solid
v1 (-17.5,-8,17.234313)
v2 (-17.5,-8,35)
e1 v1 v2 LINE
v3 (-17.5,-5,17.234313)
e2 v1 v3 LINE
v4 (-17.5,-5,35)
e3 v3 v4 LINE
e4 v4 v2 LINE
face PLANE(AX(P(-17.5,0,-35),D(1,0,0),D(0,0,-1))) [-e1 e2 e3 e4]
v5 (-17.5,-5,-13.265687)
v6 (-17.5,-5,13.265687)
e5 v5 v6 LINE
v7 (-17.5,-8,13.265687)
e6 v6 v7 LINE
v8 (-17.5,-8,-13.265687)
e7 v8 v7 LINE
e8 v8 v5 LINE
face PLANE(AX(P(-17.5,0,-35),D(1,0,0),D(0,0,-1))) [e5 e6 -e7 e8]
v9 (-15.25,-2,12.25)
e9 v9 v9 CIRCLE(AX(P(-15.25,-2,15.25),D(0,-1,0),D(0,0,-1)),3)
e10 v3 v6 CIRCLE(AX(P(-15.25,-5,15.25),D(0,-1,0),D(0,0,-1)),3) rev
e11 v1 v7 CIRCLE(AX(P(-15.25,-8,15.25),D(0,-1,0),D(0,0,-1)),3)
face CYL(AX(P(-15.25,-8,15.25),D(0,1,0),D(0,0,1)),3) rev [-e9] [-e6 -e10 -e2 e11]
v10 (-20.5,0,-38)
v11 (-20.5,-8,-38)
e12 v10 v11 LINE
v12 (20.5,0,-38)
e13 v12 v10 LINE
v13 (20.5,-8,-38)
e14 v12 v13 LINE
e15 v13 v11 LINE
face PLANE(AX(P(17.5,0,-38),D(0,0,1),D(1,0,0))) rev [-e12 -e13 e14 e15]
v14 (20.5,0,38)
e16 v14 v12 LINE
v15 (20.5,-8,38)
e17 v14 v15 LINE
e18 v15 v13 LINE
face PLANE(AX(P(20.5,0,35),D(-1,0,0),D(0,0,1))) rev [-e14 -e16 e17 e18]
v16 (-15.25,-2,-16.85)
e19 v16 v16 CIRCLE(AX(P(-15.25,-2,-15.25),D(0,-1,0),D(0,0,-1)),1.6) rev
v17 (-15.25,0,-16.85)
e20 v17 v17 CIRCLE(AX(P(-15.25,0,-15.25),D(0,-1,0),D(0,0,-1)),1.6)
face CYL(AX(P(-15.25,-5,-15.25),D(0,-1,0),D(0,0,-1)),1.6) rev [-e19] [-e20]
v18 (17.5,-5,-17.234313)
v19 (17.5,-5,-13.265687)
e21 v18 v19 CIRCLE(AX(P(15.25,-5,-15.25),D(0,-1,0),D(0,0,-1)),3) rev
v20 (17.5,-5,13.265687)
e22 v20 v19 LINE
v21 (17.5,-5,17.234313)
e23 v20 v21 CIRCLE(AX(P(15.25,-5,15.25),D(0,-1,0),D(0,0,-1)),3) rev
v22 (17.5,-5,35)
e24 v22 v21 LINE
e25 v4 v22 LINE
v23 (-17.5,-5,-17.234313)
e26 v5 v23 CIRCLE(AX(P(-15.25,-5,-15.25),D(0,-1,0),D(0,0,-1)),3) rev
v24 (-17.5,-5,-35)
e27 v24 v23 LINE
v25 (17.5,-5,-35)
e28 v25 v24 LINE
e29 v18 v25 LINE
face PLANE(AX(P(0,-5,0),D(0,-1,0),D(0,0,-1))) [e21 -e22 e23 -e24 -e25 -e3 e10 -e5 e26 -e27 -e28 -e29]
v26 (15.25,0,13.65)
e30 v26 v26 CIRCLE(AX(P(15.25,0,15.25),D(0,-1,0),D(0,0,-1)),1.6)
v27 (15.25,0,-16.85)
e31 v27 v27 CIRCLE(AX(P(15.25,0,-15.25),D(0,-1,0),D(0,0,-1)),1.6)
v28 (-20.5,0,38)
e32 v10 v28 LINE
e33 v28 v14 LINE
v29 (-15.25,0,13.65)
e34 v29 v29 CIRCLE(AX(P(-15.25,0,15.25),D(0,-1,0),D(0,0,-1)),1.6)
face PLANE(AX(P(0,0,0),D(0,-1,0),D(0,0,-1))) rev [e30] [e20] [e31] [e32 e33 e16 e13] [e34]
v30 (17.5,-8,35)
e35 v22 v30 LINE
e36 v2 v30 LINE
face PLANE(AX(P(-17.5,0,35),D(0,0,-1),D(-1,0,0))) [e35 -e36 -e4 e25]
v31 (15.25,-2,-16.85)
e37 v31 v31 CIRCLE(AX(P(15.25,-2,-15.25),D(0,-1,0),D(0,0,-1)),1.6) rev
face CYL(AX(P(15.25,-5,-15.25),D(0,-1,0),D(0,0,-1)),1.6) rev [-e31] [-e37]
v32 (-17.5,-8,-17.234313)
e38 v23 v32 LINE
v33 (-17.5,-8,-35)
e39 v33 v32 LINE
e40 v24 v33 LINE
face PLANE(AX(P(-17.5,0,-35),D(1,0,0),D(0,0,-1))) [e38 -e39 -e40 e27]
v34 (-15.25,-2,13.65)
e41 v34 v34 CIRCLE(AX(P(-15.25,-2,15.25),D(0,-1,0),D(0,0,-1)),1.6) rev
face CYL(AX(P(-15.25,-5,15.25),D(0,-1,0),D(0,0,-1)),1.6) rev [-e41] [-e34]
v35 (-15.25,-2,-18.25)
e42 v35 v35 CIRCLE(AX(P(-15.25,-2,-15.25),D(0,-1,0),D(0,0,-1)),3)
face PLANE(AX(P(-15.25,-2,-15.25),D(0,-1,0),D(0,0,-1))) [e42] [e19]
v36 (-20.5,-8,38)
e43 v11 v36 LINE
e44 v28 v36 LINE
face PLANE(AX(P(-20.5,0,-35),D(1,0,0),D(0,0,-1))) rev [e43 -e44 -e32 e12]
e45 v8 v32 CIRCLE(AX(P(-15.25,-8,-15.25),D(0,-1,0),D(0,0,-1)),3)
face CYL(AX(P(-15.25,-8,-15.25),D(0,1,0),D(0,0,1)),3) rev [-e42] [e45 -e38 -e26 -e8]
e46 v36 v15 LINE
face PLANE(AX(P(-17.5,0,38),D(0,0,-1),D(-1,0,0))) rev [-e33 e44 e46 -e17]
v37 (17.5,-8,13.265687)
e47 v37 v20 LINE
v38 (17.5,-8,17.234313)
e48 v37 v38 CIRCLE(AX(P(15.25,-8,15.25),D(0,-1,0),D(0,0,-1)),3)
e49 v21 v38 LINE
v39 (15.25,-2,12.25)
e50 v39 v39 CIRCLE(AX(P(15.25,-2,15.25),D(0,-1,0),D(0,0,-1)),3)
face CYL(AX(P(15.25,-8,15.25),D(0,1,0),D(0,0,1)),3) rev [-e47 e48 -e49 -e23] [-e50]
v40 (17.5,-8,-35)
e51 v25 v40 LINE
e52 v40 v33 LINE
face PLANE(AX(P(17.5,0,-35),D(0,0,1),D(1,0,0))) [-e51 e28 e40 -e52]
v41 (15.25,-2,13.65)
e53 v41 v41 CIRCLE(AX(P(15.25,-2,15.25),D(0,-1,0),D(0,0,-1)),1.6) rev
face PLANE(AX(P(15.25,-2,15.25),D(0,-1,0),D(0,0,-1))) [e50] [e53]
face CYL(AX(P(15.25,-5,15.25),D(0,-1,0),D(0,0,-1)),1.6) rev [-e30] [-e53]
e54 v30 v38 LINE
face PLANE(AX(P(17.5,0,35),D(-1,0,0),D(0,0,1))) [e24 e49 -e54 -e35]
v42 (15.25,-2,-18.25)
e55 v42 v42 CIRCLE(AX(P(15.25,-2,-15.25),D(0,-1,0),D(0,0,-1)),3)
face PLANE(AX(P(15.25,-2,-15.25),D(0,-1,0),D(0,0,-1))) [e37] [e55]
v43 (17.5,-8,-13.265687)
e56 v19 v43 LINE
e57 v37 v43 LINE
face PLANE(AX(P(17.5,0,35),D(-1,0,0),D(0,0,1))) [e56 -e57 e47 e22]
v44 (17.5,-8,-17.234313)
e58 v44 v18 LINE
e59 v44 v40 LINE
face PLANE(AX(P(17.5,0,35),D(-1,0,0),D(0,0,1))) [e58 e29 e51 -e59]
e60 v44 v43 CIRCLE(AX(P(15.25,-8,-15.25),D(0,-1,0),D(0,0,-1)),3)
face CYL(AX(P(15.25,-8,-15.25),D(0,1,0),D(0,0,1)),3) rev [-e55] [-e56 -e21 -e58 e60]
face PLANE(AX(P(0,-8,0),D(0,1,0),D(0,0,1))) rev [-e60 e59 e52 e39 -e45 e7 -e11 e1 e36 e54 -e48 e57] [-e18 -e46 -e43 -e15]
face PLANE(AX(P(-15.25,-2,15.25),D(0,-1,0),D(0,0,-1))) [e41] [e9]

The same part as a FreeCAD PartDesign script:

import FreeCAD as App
import Part
import Sketcher
from FreeCAD import Vector
Q = App.Units.Quantity

doc = App.newDocument("Part")
body = doc.addObject("PartDesign::Body", "Body")

# Sketch on XZ plane
sketch1 = body.newObject("Sketcher::SketchObject", "Sketch")
sketch1.AttachmentSupport = (doc.getObject("XZ_Plane"), [""])
sketch1.MapMode = "FlatFace"
sketch1.addGeometry([
    Part.LineSegment(Vector(-18, -35, 0), Vector(-18, 35, 0)),
    Part.LineSegment(Vector(-18, 35, 0), Vector(18, 35, 0)),
    Part.LineSegment(Vector(18, 35, 0), Vector(18, -35, 0)),
    Part.LineSegment(Vector(18, -35, 0), Vector(-18, -35, 0)),
], False)
sketch1.addConstraint([
    Sketcher.Constraint("Coincident", 0, 2, 1, 1),
    Sketcher.Constraint("Coincident", 1, 2, 2, 1),
    Sketcher.Constraint("Coincident", 2, 2, 3, 1),
    Sketcher.Constraint("Coincident", 3, 2, 0, 1),
    Sketcher.Constraint("Vertical", 0),
    Sketcher.Constraint("Horizontal", 1),
    Sketcher.Constraint("Vertical", 2),
    Sketcher.Constraint("Horizontal", 3),
    Sketcher.Constraint("Symmetric", 0, 2, 2, 2, -1, 1),
    Sketcher.Constraint("DistanceX", 1, 1, 1, 2, Q("35 mm")),
    Sketcher.Constraint("DistanceY", 0, 1, 0, 2, Q("70 mm")),
])
pad1 = body.newObject("PartDesign::Pad", "Pad")
pad1.Profile = sketch1
pad1.Length = 5

# Sketch on XZ plane
sketch2 = body.newObject("Sketcher::SketchObject", "Sketch001")
sketch2.AttachmentSupport = (doc.getObject("XZ_Plane"), [""])
sketch2.MapMode = "FlatFace"
sketch2.AttachmentOffset = App.Placement(Vector(0, 0, 5), App.Rotation())
sketch2.addGeometry([
    Part.LineSegment(Vector(-20, -38, 0), Vector(-20, 38, 0)),  # 0
    Part.LineSegment(Vector(-20, 38, 0), Vector(20, 38, 0)),  # 1
    Part.LineSegment(Vector(20, 38, 0), Vector(20, -38, 0)),  # 2
    Part.LineSegment(Vector(20, -38, 0), Vector(-20, -38, 0)),  # 3
    Part.LineSegment(Vector(18, 35, 0), Vector(-18, 35, 0)),  # 4
    Part.LineSegment(Vector(-18, 35, 0), Vector(-18, -35, 0)),  # 5
    Part.LineSegment(Vector(-18, -35, 0), Vector(18, -35, 0)),  # 6
    Part.LineSegment(Vector(18, -35, 0), Vector(18, 35, 0)),  # 7
], False)
sketch2.addConstraint([
    Sketcher.Constraint("Coincident", 0, 2, 1, 1),
    Sketcher.Constraint("Coincident", 1, 2, 2, 1),
    Sketcher.Constraint("Coincident", 2, 2, 3, 1),
    Sketcher.Constraint("Coincident", 3, 2, 0, 1),
    Sketcher.Constraint("Coincident", 4, 2, 5, 1),
    Sketcher.Constraint("Coincident", 5, 2, 6, 1),
    Sketcher.Constraint("Coincident", 6, 2, 7, 1),
    Sketcher.Constraint("Coincident", 7, 2, 4, 1),
    Sketcher.Constraint("Vertical", 0),
    Sketcher.Constraint("Horizontal", 1),
    Sketcher.Constraint("Vertical", 2),
    Sketcher.Constraint("Horizontal", 3),
    Sketcher.Constraint("Horizontal", 4),
    Sketcher.Constraint("Vertical", 5),
    Sketcher.Constraint("Horizontal", 6),
    Sketcher.Constraint("Vertical", 7),
    Sketcher.Constraint("Symmetric", 0, 2, 2, 2, -1, 1),
    Sketcher.Constraint("Symmetric", 4, 2, 6, 2, -1, 1),
    Sketcher.Constraint("DistanceX", 1, 1, 1, 2, Q("41 mm")),
    Sketcher.Constraint("DistanceX", 4, 2, 4, 1, Q("35 mm")),
    Sketcher.Constraint("DistanceY", 0, 1, 0, 2, Q("76 mm")),
    Sketcher.Constraint("DistanceY", 5, 2, 5, 1, Q("70 mm")),
])
pad2 = body.newObject("PartDesign::Pad", "Pad001")
pad2.Profile = sketch2
pad2.Type = "TwoLengths"
pad2.Length = 5
pad2.Length2 = 3
pad2.Reversed = True

# Sketch on XZ plane
sketch3 = body.newObject("Sketcher::SketchObject", "Sketch002")
sketch3.AttachmentSupport = (doc.getObject("XZ_Plane"), [""])
sketch3.MapMode = "FlatFace"
sketch3.AttachmentOffset = App.Placement(Vector(0, 0, 5), App.Rotation())
sketch3.addGeometry([
    Part.Circle(Vector(-15.2, -15.2, 0), Vector(0, 0, 1), 1.6),
    Part.Circle(Vector(-15.2, 15.2, 0), Vector(0, 0, 1), 1.6),
    Part.Circle(Vector(15.2, 15.2, 0), Vector(0, 0, 1), 1.6),
    Part.Circle(Vector(15.2, -15.2, 0), Vector(0, 0, 1), 1.6),
], False)
sketch3.addConstraint([
    Sketcher.Constraint("Equal", 0, 1),
    Sketcher.Constraint("Equal", 1, 2),
    Sketcher.Constraint("Equal", 2, 3),
    Sketcher.Constraint("Symmetric", 0, 3, 2, 3, -1, 1),
    Sketcher.Constraint("Symmetric", 1, 3, 3, 3, -1, 1),
    Sketcher.Constraint("Symmetric", 1, 3, 2, 3, -2),
    Sketcher.Constraint("Diameter", 0, Q("3.2 mm")),
    Sketcher.Constraint("DistanceY", 0, 3, 1, 3, Q("30.5 mm")),
    Sketcher.Constraint("DistanceX", 1, 3, 2, 3, Q("30.5 mm")),
])
doc.recompute()
hole = body.newObject("PartDesign::Hole", "Hole")
hole.Profile = sketch3
hole.ThreadType = "None"
hole.Diameter = 3.2
hole.DepthType = "ThroughAll"

# Sketch on XZ plane
sketch4 = body.newObject("Sketcher::SketchObject", "Sketch003")
sketch4.AttachmentSupport = (doc.getObject("XZ_Plane"), [""])
sketch4.MapMode = "FlatFace"
sketch4.AttachmentOffset = App.Placement(Vector(0, 0, 5), App.Rotation())
sketch4.addGeometry([
    Part.Circle(Vector(-15.2, 15.2, 0), Vector(0, 0, 1), 3),
    Part.Circle(Vector(15.2, 15.2, 0), Vector(0, 0, 1), 3),
    Part.Circle(Vector(15.2, -15.2, 0), Vector(0, 0, 1), 3),
    Part.Circle(Vector(-15.2, -15.2, 0), Vector(0, 0, 1), 3),
], False)
sketch4.addConstraint([
    Sketcher.Constraint("Equal", 0, 1),
    Sketcher.Constraint("Equal", 1, 2),
    Sketcher.Constraint("Equal", 2, 3),
    Sketcher.Constraint("Symmetric", 0, 3, 2, 3, -1, 1),
    Sketcher.Constraint("Symmetric", 1, 3, 3, 3, -1, 1),
    Sketcher.Constraint("Symmetric", 0, 3, 1, 3, -2),
    Sketcher.Constraint("Diameter", 0, Q("6 mm")),
    Sketcher.Constraint("DistanceX", 0, 3, 1, 3, Q("30.5 mm")),
    Sketcher.Constraint("DistanceY", 2, 3, 1, 3, Q("30.5 mm")),
])
pocket1 = body.newObject("PartDesign::Pocket", "Pocket")
pocket1.Profile = sketch4
pocket1.Type = "TwoLengths"
pocket1.Length = 44.465504
pocket1.Length2 = 3
pocket1.Reversed = True

doc.recompute()
